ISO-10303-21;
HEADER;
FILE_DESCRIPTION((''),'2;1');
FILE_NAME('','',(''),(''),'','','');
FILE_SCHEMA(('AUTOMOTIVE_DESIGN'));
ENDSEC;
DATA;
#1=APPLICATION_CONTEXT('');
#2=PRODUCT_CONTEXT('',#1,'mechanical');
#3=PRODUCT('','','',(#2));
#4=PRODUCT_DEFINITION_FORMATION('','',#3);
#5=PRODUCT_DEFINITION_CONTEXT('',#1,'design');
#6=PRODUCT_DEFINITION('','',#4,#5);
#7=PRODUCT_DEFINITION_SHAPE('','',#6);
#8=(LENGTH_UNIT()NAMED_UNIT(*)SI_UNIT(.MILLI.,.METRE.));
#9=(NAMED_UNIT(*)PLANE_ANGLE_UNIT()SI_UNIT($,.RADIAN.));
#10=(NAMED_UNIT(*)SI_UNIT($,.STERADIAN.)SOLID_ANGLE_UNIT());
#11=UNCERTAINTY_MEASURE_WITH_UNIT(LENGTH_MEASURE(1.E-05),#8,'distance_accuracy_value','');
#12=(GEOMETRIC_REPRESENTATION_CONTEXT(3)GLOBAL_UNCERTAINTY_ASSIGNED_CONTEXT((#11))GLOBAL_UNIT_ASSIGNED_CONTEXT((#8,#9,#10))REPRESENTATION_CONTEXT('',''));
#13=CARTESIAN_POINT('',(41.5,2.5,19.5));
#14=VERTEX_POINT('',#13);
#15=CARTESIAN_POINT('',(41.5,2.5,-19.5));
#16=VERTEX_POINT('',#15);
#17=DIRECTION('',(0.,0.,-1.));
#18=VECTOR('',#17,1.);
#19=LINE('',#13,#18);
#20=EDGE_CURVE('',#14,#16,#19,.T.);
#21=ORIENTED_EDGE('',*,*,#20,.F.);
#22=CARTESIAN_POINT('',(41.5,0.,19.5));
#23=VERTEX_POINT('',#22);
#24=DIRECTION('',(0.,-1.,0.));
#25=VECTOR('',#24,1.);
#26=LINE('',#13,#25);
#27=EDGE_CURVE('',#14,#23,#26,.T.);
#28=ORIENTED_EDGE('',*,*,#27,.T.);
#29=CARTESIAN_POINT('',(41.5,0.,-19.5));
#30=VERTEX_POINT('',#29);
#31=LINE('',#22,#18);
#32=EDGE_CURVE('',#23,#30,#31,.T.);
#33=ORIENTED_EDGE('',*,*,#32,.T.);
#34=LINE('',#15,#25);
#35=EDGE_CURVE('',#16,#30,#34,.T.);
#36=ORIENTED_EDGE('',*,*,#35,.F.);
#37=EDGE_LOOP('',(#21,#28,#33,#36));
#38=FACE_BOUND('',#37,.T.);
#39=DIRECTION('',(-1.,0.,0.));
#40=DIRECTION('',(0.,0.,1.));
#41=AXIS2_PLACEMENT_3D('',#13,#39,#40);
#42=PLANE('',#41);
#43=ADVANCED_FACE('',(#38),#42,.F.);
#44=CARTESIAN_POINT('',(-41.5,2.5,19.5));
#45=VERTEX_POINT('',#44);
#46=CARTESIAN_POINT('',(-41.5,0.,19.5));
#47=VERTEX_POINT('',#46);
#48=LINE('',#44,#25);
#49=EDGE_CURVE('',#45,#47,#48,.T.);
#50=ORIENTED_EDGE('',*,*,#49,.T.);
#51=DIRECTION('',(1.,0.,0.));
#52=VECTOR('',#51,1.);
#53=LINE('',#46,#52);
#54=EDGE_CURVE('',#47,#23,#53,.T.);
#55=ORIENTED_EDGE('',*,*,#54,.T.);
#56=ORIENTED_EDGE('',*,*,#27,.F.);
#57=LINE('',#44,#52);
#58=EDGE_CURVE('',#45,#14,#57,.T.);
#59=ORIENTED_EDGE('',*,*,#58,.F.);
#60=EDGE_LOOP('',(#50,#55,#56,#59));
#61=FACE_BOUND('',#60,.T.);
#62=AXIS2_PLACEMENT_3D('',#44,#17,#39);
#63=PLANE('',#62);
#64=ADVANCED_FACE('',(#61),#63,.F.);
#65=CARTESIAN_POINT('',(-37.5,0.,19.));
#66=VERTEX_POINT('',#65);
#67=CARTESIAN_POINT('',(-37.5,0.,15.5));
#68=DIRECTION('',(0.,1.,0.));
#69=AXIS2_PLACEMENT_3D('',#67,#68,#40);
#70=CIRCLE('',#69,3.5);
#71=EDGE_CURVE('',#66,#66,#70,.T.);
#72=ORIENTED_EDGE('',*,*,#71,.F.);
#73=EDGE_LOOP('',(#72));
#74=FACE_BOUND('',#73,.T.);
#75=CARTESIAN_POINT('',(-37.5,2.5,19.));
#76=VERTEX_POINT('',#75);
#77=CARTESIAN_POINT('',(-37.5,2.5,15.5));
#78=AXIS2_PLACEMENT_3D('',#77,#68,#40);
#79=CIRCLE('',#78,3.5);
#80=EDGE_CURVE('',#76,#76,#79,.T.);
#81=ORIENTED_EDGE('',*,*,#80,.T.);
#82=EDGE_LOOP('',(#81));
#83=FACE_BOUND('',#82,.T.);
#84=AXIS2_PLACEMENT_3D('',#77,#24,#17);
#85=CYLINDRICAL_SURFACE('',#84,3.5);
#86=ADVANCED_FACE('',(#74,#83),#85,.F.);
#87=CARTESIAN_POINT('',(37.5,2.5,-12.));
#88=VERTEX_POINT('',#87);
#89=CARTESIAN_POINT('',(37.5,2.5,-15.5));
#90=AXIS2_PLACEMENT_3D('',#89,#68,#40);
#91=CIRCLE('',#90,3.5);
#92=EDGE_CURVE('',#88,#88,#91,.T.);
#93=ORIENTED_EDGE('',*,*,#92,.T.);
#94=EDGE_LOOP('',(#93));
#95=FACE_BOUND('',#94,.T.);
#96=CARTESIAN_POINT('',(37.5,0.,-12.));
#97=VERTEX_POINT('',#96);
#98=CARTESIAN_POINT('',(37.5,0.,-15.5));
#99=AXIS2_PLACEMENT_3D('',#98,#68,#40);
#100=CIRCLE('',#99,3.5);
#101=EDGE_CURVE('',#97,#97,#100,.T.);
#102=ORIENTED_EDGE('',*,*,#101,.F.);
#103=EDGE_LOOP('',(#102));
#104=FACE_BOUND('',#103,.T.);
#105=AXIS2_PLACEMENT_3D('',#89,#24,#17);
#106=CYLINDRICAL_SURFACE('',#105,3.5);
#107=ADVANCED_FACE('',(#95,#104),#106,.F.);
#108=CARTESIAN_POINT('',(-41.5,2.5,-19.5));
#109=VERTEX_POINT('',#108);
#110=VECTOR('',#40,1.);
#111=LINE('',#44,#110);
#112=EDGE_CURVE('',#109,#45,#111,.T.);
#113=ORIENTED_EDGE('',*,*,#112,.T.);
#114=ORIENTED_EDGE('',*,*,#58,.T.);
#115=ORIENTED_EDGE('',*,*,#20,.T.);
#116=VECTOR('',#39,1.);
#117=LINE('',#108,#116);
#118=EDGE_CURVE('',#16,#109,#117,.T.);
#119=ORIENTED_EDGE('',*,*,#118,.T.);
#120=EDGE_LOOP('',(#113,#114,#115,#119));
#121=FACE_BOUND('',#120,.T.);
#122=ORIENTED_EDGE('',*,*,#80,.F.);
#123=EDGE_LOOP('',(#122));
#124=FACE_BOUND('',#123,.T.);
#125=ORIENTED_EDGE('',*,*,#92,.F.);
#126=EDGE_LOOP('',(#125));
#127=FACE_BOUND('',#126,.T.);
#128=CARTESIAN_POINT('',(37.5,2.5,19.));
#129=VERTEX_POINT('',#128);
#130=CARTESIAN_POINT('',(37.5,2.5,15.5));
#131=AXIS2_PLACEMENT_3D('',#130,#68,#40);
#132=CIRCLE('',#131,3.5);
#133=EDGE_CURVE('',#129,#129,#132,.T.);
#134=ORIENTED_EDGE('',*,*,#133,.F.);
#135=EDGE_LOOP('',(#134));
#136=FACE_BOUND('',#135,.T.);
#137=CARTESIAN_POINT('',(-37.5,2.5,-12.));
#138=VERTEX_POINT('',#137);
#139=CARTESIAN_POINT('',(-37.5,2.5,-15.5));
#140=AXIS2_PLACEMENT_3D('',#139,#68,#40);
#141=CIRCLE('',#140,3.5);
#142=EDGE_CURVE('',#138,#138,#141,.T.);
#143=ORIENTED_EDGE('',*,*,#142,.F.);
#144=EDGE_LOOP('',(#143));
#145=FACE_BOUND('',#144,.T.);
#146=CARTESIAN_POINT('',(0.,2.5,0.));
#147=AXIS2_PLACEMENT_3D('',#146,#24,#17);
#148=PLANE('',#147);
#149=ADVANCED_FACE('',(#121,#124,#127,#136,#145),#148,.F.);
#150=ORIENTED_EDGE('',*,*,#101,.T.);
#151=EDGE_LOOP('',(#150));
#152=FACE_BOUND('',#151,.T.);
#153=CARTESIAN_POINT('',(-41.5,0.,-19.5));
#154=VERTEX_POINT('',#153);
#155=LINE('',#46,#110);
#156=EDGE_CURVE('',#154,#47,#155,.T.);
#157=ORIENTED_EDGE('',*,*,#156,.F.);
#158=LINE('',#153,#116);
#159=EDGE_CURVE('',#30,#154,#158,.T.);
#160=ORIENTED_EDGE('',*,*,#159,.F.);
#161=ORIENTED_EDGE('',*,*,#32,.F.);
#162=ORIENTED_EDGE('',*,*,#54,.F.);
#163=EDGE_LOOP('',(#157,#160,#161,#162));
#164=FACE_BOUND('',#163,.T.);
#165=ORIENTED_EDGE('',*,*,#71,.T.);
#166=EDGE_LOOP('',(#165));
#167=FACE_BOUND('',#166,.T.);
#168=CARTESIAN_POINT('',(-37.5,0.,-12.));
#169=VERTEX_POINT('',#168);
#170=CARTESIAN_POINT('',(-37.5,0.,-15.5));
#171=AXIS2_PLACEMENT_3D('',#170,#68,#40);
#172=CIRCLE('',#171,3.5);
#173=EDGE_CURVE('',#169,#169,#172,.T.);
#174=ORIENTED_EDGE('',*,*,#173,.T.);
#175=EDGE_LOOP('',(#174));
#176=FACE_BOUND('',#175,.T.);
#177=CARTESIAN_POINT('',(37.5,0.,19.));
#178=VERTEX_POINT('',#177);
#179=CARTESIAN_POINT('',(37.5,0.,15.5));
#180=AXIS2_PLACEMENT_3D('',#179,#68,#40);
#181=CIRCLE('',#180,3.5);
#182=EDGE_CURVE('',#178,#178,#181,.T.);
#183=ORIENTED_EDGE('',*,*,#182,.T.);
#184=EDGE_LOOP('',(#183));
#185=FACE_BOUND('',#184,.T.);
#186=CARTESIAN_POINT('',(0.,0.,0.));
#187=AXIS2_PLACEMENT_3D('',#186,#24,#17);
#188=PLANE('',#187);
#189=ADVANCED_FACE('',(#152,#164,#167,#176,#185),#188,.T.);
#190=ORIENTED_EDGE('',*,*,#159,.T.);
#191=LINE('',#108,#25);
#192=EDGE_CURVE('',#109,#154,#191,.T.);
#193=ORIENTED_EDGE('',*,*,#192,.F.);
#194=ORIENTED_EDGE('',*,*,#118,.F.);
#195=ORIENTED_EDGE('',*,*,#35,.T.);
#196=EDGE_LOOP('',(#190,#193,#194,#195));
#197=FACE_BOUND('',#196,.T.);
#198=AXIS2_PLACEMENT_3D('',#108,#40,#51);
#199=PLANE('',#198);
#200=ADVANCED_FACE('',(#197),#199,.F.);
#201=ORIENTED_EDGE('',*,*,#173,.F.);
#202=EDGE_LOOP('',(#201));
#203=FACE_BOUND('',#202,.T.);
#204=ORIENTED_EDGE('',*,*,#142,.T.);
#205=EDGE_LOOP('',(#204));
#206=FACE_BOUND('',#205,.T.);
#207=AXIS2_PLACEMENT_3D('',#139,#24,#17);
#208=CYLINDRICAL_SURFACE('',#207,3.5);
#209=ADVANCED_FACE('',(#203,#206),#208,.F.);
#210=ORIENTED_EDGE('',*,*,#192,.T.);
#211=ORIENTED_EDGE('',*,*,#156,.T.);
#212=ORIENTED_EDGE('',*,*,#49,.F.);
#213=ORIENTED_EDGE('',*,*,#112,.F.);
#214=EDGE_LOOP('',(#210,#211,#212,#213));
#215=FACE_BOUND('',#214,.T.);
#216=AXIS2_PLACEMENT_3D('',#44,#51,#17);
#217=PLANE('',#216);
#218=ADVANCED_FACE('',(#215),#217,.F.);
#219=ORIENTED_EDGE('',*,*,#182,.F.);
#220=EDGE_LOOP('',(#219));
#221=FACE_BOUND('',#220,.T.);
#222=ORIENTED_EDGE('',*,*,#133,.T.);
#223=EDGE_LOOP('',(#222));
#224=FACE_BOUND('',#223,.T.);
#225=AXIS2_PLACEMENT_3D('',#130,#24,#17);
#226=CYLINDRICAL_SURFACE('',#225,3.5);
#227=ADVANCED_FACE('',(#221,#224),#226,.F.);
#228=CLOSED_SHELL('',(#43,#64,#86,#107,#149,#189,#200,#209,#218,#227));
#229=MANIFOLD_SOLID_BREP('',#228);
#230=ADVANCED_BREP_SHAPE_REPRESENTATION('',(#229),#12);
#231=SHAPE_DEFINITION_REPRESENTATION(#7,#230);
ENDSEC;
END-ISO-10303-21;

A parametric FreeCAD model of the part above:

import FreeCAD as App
import Part
import Sketcher

V = App.Vector
Q = App.Units.Quantity

doc = App.newDocument("Part")
body = doc.addObject("PartDesign::Body", "Body")

# Sketch on XZ plane
sketch1 = body.newObject("Sketcher::SketchObject", "Sketch")
sketch1.AttachmentSupport = (doc.getObject("XZ_Plane"), [""])
sketch1.MapMode = "FlatFace"
sketch1.addGeometry([
    Part.LineSegment(V(-41.5, -19.5, 0), V(-41.5, 19.5, 0)),  # 0
    Part.LineSegment(V(-41.5, 19.5, 0), V(41.5, 19.5, 0)),  # 1
    Part.LineSegment(V(41.5, 19.5, 0), V(41.5, -19.5, 0)),  # 2
    Part.LineSegment(V(41.5, -19.5, 0), V(-41.5, -19.5, 0)),  # 3
    Part.Circle(V(-37.5, 15.5, 0), V(0, 0, 1), 3.5),  # 4
    Part.Circle(V(37.5, 15.5, 0), V(0, 0, 1), 3.5),  # 5
    Part.Circle(V(-37.5, -15.5, 0), V(0, 0, 1), 3.5),  # 6
    Part.Circle(V(37.5, -15.5, 0), V(0, 0, 1), 3.5),  # 7
], False)
sketch1.addConstraint([
    Sketcher.Constraint("Coincident", 0, 2, 1, 1),
    Sketcher.Constraint("Coincident", 1, 2, 2, 1),
    Sketcher.Constraint("Coincident", 2, 2, 3, 1),
    Sketcher.Constraint("Coincident", 3, 2, 0, 1),
    Sketcher.Constraint("Vertical", 0),
    Sketcher.Constraint("Horizontal", 1),
    Sketcher.Constraint("Vertical", 2),
    Sketcher.Constraint("Horizontal", 3),
    Sketcher.Constraint("Equal", 4, 5),
    Sketcher.Constraint("Equal", 5, 6),
    Sketcher.Constraint("Equal", 6, 7),
    Sketcher.Constraint("Symmetric", 5, 3, 6, 3, -1, 1),
    Sketcher.Constraint("Symmetric", 4, 3, 7, 3, -1, 1),
    Sketcher.Constraint("Symmetric", 0, 2, 2, 2, -1, 1),
    Sketcher.Constraint("Symmetric", 4, 3, 5, 3, -2),
    Sketcher.Constraint("Diameter", 4, Q("7 mm")),
    Sketcher.Constraint("DistanceX", 1, 1, 1, 2, Q("83 mm")),
    Sketcher.Constraint("DistanceY", 0, 1, 0, 2, Q("39 mm")),
    Sketcher.Constraint("DistanceX", 4, 3, 5, 3, Q("75 mm")),
    Sketcher.Constraint("DistanceY", 6, 3, 4, 3, Q("31 mm")),
])
pad1 = body.newObject("PartDesign::Pad", "Pad")
pad1.Profile = sketch1
pad1.Length = 2.5
pad1.Reversed = True

doc.recompute()
